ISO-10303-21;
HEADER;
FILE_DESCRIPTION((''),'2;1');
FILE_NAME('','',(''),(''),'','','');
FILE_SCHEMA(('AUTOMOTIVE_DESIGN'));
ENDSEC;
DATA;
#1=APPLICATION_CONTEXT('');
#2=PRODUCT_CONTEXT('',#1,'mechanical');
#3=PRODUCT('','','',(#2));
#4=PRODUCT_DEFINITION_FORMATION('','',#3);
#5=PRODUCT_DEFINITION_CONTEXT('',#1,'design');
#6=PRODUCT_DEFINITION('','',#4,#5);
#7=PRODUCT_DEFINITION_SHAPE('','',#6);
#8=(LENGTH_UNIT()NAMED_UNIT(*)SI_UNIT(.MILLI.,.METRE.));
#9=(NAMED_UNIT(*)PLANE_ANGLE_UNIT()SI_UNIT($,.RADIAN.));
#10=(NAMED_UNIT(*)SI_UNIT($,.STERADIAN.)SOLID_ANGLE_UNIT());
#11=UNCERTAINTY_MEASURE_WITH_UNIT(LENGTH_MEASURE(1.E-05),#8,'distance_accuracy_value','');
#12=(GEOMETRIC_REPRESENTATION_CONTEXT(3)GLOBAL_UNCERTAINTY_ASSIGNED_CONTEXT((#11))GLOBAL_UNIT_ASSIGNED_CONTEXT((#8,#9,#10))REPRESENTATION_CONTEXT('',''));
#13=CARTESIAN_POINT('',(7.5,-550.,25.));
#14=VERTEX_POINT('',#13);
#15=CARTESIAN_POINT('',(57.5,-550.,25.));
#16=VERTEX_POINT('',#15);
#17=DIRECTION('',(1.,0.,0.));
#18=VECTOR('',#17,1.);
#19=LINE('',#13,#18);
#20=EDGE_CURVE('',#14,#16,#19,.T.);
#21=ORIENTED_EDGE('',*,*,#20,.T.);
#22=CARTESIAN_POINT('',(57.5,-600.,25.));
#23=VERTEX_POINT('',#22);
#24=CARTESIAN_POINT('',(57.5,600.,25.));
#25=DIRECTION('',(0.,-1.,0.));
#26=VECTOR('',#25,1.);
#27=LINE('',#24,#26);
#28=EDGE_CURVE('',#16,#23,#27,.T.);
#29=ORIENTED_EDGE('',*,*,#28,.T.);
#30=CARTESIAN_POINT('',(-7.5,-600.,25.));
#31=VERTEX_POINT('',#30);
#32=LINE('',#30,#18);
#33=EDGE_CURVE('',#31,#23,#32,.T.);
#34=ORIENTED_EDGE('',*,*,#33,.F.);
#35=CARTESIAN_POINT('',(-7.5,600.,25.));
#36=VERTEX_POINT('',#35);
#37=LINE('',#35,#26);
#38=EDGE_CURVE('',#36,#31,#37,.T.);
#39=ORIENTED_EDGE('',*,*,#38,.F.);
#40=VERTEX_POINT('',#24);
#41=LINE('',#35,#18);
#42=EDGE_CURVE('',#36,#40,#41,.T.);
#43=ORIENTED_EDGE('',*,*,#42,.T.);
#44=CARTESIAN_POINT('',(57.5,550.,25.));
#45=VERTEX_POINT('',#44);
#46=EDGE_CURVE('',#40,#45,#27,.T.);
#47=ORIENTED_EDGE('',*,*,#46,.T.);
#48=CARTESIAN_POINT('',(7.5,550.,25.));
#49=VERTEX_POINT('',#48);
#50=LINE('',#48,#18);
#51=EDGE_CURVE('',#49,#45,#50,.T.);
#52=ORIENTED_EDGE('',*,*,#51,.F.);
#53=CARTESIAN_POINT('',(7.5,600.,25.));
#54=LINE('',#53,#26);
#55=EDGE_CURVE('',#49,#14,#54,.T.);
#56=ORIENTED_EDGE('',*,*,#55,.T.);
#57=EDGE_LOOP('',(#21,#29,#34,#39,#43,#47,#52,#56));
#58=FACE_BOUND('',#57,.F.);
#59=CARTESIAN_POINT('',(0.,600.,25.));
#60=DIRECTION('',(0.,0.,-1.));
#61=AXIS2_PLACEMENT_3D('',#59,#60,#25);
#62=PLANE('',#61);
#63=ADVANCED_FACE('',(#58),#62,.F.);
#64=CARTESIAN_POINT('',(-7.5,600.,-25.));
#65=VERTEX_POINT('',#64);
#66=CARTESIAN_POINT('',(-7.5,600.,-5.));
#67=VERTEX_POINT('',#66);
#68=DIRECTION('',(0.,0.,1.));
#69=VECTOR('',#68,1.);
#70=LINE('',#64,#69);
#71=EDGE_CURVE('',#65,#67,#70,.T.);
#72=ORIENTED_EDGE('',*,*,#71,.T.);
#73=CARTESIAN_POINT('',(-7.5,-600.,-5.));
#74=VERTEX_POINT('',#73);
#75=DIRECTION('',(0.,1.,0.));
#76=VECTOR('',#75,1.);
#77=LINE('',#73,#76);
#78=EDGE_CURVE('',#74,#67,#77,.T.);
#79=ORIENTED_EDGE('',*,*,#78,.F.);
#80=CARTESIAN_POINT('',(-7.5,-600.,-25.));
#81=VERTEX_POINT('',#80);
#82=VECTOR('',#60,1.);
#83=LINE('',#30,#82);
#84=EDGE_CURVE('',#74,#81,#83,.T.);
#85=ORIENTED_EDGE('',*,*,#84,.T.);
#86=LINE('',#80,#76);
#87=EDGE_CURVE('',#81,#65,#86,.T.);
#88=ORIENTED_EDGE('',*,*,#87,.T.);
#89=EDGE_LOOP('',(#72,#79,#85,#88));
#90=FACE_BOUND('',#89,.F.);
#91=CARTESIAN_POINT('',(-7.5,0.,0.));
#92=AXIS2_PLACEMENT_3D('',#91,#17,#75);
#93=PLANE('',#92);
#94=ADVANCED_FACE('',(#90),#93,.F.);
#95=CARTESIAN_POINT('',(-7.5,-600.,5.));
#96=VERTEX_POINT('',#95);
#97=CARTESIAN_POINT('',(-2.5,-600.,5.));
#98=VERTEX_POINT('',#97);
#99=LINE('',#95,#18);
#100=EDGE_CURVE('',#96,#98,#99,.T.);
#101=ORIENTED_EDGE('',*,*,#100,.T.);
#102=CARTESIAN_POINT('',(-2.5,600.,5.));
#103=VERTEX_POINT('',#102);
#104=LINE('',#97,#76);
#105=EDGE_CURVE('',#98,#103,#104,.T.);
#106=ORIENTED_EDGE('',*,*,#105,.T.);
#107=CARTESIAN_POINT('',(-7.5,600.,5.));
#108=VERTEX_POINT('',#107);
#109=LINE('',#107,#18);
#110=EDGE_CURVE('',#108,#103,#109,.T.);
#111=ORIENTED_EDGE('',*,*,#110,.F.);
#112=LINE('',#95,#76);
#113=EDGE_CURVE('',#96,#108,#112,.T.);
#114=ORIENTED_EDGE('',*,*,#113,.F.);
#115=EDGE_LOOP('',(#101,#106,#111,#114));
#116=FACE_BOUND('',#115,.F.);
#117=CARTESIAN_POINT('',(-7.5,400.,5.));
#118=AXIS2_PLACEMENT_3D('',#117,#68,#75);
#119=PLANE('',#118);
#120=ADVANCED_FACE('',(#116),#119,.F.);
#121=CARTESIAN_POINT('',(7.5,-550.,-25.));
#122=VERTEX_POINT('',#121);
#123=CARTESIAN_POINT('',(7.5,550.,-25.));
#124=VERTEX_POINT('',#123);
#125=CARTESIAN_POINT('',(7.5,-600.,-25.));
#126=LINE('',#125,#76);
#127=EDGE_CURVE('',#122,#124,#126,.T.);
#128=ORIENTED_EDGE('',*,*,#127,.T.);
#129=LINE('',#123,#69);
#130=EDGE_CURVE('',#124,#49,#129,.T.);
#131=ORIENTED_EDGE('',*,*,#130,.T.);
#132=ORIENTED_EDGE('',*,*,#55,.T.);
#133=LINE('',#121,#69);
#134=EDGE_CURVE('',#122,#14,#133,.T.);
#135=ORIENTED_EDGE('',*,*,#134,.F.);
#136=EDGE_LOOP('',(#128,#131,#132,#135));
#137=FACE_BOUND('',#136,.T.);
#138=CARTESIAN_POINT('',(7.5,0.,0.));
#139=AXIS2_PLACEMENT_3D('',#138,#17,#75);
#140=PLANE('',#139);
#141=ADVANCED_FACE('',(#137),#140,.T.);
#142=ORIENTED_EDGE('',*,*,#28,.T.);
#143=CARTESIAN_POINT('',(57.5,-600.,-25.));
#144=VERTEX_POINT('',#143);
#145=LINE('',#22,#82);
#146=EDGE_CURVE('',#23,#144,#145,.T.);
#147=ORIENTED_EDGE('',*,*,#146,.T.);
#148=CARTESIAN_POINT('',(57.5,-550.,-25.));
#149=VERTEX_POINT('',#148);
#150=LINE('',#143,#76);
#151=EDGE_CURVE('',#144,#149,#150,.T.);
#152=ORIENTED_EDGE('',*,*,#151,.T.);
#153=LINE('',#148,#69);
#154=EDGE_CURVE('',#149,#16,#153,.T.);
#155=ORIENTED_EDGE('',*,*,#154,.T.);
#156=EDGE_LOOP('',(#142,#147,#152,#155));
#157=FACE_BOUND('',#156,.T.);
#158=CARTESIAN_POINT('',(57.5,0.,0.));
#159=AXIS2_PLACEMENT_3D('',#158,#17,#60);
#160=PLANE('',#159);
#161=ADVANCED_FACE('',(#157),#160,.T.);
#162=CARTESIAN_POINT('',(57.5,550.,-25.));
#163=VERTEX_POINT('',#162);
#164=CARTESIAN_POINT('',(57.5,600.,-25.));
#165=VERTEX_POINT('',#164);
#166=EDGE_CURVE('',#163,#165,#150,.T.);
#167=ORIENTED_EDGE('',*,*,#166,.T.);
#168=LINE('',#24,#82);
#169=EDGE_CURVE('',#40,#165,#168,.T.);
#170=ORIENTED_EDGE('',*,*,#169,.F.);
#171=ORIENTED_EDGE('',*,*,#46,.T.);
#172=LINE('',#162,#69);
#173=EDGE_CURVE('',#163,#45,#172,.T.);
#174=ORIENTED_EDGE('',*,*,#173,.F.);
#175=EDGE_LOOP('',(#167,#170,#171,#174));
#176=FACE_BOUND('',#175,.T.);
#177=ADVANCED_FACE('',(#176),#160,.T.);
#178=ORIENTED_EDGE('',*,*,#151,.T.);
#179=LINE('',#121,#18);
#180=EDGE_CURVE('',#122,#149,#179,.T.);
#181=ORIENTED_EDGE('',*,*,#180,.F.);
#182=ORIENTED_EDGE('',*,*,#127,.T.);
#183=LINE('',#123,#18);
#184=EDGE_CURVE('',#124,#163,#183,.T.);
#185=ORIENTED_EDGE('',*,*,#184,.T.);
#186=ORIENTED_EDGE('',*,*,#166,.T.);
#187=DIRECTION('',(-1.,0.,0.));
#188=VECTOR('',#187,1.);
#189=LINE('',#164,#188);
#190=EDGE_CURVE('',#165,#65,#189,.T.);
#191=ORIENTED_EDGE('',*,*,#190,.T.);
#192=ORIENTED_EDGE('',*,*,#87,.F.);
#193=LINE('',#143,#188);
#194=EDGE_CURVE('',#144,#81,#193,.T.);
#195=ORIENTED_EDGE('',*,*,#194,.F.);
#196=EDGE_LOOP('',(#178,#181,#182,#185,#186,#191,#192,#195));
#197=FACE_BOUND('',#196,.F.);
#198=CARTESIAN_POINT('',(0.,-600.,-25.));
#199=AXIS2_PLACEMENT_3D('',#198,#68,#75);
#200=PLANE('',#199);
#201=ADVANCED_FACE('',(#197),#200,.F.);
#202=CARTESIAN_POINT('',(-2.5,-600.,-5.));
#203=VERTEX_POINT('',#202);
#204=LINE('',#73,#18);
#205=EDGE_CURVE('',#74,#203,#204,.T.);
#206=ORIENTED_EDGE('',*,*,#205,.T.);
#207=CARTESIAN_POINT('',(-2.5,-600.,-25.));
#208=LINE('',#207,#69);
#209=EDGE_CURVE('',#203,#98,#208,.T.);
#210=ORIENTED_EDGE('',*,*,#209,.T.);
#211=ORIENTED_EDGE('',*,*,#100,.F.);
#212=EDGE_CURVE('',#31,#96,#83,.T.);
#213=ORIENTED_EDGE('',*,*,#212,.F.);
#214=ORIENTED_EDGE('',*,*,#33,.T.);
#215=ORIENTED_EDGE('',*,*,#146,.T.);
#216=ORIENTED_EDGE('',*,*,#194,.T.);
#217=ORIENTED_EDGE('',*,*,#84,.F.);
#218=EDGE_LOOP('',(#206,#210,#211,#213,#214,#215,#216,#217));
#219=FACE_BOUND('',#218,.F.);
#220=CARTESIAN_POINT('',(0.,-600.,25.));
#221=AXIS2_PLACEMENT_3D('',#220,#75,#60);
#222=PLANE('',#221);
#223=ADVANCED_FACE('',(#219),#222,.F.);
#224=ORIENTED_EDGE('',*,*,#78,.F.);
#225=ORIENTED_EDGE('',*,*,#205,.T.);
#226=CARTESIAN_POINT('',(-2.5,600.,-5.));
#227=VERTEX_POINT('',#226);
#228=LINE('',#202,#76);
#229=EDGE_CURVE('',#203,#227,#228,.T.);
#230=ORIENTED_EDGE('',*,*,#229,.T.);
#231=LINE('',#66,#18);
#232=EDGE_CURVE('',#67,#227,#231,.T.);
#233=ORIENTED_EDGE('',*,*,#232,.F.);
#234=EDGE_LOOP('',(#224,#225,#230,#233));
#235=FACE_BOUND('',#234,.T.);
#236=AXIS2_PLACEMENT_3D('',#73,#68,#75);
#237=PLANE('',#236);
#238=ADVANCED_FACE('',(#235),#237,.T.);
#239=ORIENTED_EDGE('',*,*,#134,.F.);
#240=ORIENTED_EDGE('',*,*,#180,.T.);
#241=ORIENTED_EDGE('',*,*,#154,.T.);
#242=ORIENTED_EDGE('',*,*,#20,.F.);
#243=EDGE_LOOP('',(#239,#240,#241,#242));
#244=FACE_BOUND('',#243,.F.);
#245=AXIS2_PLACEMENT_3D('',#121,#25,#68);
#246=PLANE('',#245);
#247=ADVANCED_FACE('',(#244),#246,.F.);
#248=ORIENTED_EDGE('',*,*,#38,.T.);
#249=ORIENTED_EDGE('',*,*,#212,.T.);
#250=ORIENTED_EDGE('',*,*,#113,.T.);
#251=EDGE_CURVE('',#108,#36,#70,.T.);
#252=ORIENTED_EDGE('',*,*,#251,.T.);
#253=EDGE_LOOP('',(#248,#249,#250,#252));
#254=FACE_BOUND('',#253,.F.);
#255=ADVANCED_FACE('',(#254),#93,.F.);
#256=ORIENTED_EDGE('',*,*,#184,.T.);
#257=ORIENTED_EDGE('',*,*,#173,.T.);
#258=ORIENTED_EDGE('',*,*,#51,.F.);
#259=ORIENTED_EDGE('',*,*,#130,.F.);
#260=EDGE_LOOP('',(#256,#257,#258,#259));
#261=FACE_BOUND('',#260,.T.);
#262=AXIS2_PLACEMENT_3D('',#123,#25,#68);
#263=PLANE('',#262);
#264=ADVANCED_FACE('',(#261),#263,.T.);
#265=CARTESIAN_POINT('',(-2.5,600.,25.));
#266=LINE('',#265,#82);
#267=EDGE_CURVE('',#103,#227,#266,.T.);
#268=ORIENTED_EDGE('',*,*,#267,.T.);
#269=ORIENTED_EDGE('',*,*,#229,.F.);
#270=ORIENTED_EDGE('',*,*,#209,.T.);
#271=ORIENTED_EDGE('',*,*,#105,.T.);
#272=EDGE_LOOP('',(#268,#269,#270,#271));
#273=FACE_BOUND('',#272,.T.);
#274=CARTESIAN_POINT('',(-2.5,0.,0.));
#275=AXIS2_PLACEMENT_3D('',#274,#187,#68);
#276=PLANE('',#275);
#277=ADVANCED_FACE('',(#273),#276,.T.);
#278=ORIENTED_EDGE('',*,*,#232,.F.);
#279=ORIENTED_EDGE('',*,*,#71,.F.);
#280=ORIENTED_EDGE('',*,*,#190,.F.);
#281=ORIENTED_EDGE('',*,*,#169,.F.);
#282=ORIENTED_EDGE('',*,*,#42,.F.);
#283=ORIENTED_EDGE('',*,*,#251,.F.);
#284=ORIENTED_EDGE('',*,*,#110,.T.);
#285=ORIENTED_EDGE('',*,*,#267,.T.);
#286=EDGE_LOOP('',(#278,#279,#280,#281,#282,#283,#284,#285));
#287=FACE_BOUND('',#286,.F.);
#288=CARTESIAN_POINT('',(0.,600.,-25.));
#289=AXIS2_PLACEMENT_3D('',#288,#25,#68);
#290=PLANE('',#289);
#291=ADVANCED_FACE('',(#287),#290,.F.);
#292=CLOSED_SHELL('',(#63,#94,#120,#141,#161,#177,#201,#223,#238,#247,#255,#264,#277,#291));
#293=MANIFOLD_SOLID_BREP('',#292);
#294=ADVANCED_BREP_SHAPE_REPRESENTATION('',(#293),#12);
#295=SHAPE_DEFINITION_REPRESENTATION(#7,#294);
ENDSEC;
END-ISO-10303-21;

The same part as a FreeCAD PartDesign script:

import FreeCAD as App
import Part
import Sketcher

V = App.Vector

doc = App.newDocument("Part")
params = doc.addObject("Spreadsheet::Sheet", "Params")
for row, (alias, value) in enumerate([
    ("sketch1_width", "1200 mm"),
    ("sketch1_height", "50 mm"),
    ("pad1_length", "15 mm"),
    ("sketch2_width", "50 mm"),
    ("pad2_length", "50 mm"),
    ("sketch3_width", "1200 mm"),
    ("sketch3_height", "10 mm"),
    ("pocket1_length", "5 mm"),
], start=1):
    params.set(f"A{row}", alias)
    params.set(f"B{row}", "=" + value)
    params.setAlias(f"B{row}", alias)

body = doc.addObject("PartDesign::Body", "Body")

# Sketch on YZ plane
sketch1 = body.newObject("Sketcher::SketchObject", "Sketch")
sketch1.AttachmentSupport = (doc.getObject("YZ_Plane"), [""])
sketch1.MapMode = "FlatFace"
sketch1.addGeometry(Part.LineSegment(V(600, -25, 0), V(600, 25, 0)), False)
sketch1.addGeometry(Part.LineSegment(V(600, 25, 0), V(-600, 25, 0)), False)
sketch1.addGeometry(Part.LineSegment(V(-600, 25, 0), V(-600, -25, 0)), False)
sketch1.addGeometry(Part.LineSegment(V(-600, -25, 0), V(600, -25, 0)), False)
sketch1.addConstraint(Sketcher.Constraint("Coincident", 0, 2, 1, 1))
sketch1.addConstraint(Sketcher.Constraint("Coincident", 1, 2, 2, 1))
sketch1.addConstraint(Sketcher.Constraint("Coincident", 2, 2, 3, 1))
sketch1.addConstraint(Sketcher.Constraint("Coincident", 3, 2, 0, 1))
sketch1.addConstraint(Sketcher.Constraint("Vertical", 0))
sketch1.addConstraint(Sketcher.Constraint("Horizontal", 1))
sketch1.addConstraint(Sketcher.Constraint("Vertical", 2))
sketch1.addConstraint(Sketcher.Constraint("Horizontal", 3))
sketch1.addConstraint(Sketcher.Constraint("Symmetric", 0, 2, 2, 2, -1, 1))
sketch1.addConstraint(Sketcher.Constraint("DistanceX", 1, 2, 1, 1, 1200.0))
sketch1.addConstraint(Sketcher.Constraint("DistanceY", 0, 1, 0, 2, 50.0))
sketch1.setExpression("Constraints[9]", "Params.sketch1_width")
sketch1.setExpression("Constraints[10]", "Params.sketch1_height")
pad1 = body.newObject("PartDesign::Pad", "Pad")
pad1.Profile = sketch1
pad1.setExpression("Length", "Params.pad1_length")
pad1.Midplane = True

# Sketch on YZ plane
sketch2 = body.newObject("Sketcher::SketchObject", "Sketch001")
sketch2.AttachmentSupport = (doc.getObject("YZ_Plane"), [""])
sketch2.MapMode = "FlatFace"
sketch2.AttachmentOffset = App.Placement(V(0, 0, 7.5), App.Rotation())
sketch2.addGeometry(Part.LineSegment(V(600, -25, 0), V(600, 25, 0)), False)
sketch2.addGeometry(Part.LineSegment(V(600, 25, 0), V(550, 25, 0)), False)
sketch2.addGeometry(Part.LineSegment(V(550, 25, 0), V(550, -25, 0)), False)
sketch2.addGeometry(Part.LineSegment(V(550, -25, 0), V(600, -25, 0)), False)
sketch2.addGeometry(Part.LineSegment(V(-550, -25, 0), V(-550, 25, 0)), False)
sketch2.addGeometry(Part.LineSegment(V(-550, 25, 0), V(-600, 25, 0)), False)
sketch2.addGeometry(Part.LineSegment(V(-600, 25, 0), V(-600, -25, 0)), False)
sketch2.addGeometry(Part.LineSegment(V(-600, -25, 0), V(-550, -25, 0)), False)
sketch2.addConstraint(Sketcher.Constraint("Coincident", 0, 2, 1, 1))
sketch2.addConstraint(Sketcher.Constraint("Coincident", 1, 2, 2, 1))
sketch2.addConstraint(Sketcher.Constraint("Coincident", 2, 2, 3, 1))
sketch2.addConstraint(Sketcher.Constraint("Coincident", 3, 2, 0, 1))
sketch2.addConstraint(Sketcher.Constraint("Coincident", 4, 2, 5, 1))
sketch2.addConstraint(Sketcher.Constraint("Coincident", 5, 2, 6, 1))
sketch2.addConstraint(Sketcher.Constraint("Coincident", 6, 2, 7, 1))
sketch2.addConstraint(Sketcher.Constraint("Coincident", 7, 2, 4, 1))
sketch2.addConstraint(Sketcher.Constraint("Vertical", 0))
sketch2.addConstraint(Sketcher.Constraint("Horizontal", 1))
sketch2.addConstraint(Sketcher.Constraint("Vertical", 2))
sketch2.addConstraint(Sketcher.Constraint("Horizontal", 3))
sketch2.addConstraint(Sketcher.Constraint("Vertical", 4))
sketch2.addConstraint(Sketcher.Constraint("Horizontal", 5))
sketch2.addConstraint(Sketcher.Constraint("Vertical", 6))
sketch2.addConstraint(Sketcher.Constraint("Horizontal", 7))
sketch2.addConstraint(Sketcher.Constraint("Symmetric", 2, 2, 4, 2, -1, 1))
sketch2.addConstraint(Sketcher.Constraint("Symmetric", 0, 2, 6, 2, -1, 1))
sketch2.addConstraint(Sketcher.Constraint("Horizontal", 1, 2, 4, 2))
sketch2.addConstraint(Sketcher.Constraint("Equal", 7, 0))
sketch2.addConstraint(Sketcher.Constraint("DistanceX", 1, 2, 1, 1, 50.0))
sketch2.addConstraint(Sketcher.Constraint("DistanceX", -1, 1, 0, 2, 600.0))
sketch2.setExpression("Constraints[20]", "Params.sketch2_width")
pad2 = body.newObject("PartDesign::Pad", "Pad001")
pad2.Profile = sketch2
pad2.setExpression("Length", "Params.pad2_length")

# Sketch on YZ plane
sketch3 = body.newObject("Sketcher::SketchObject", "Sketch002")
sketch3.AttachmentSupport = (doc.getObject("YZ_Plane"), [""])
sketch3.MapMode = "FlatFace"
sketch3.AttachmentOffset = App.Placement(V(0, 0, -7.5), App.Rotation())
sketch3.addGeometry(Part.LineSegment(V(600, 5, 0), V(600, -5, 0)), False)
sketch3.addGeometry(Part.LineSegment(V(600, -5, 0), V(-600, -5, 0)), False)
sketch3.addGeometry(Part.LineSegment(V(-600, -5, 0), V(-600, 5, 0)), False)
sketch3.addGeometry(Part.LineSegment(V(-600, 5, 0), V(600, 5, 0)), False)
sketch3.addConstraint(Sketcher.Constraint("Coincident", 0, 2, 1, 1))
sketch3.addConstraint(Sketcher.Constraint("Coincident", 1, 2, 2, 1))
sketch3.addConstraint(Sketcher.Constraint("Coincident", 2, 2, 3, 1))
sketch3.addConstraint(Sketcher.Constraint("Coincident", 3, 2, 0, 1))
sketch3.addConstraint(Sketcher.Constraint("Vertical", 0))
sketch3.addConstraint(Sketcher.Constraint("Horizontal", 1))
sketch3.addConstraint(Sketcher.Constraint("Vertical", 2))
sketch3.addConstraint(Sketcher.Constraint("Horizontal", 3))
sketch3.addConstraint(Sketcher.Constraint("Symmetric", 0, 2, 2, 2, -1, 1))
sketch3.addConstraint(Sketcher.Constraint("DistanceX", 1, 2, 1, 1, 1200.0))
sketch3.addConstraint(Sketcher.Constraint("DistanceY", 0, 2, 0, 1, 10.0))
sketch3.setExpression("Constraints[9]", "Params.sketch3_width")
sketch3.setExpression("Constraints[10]", "Params.sketch3_height")
pocket1 = body.newObject("PartDesign::Pocket", "Pocket")
pocket1.Profile = sketch3
pocket1.setExpression("Length", "Params.pocket1_length")
pocket1.Reversed = True

doc.recompute()
